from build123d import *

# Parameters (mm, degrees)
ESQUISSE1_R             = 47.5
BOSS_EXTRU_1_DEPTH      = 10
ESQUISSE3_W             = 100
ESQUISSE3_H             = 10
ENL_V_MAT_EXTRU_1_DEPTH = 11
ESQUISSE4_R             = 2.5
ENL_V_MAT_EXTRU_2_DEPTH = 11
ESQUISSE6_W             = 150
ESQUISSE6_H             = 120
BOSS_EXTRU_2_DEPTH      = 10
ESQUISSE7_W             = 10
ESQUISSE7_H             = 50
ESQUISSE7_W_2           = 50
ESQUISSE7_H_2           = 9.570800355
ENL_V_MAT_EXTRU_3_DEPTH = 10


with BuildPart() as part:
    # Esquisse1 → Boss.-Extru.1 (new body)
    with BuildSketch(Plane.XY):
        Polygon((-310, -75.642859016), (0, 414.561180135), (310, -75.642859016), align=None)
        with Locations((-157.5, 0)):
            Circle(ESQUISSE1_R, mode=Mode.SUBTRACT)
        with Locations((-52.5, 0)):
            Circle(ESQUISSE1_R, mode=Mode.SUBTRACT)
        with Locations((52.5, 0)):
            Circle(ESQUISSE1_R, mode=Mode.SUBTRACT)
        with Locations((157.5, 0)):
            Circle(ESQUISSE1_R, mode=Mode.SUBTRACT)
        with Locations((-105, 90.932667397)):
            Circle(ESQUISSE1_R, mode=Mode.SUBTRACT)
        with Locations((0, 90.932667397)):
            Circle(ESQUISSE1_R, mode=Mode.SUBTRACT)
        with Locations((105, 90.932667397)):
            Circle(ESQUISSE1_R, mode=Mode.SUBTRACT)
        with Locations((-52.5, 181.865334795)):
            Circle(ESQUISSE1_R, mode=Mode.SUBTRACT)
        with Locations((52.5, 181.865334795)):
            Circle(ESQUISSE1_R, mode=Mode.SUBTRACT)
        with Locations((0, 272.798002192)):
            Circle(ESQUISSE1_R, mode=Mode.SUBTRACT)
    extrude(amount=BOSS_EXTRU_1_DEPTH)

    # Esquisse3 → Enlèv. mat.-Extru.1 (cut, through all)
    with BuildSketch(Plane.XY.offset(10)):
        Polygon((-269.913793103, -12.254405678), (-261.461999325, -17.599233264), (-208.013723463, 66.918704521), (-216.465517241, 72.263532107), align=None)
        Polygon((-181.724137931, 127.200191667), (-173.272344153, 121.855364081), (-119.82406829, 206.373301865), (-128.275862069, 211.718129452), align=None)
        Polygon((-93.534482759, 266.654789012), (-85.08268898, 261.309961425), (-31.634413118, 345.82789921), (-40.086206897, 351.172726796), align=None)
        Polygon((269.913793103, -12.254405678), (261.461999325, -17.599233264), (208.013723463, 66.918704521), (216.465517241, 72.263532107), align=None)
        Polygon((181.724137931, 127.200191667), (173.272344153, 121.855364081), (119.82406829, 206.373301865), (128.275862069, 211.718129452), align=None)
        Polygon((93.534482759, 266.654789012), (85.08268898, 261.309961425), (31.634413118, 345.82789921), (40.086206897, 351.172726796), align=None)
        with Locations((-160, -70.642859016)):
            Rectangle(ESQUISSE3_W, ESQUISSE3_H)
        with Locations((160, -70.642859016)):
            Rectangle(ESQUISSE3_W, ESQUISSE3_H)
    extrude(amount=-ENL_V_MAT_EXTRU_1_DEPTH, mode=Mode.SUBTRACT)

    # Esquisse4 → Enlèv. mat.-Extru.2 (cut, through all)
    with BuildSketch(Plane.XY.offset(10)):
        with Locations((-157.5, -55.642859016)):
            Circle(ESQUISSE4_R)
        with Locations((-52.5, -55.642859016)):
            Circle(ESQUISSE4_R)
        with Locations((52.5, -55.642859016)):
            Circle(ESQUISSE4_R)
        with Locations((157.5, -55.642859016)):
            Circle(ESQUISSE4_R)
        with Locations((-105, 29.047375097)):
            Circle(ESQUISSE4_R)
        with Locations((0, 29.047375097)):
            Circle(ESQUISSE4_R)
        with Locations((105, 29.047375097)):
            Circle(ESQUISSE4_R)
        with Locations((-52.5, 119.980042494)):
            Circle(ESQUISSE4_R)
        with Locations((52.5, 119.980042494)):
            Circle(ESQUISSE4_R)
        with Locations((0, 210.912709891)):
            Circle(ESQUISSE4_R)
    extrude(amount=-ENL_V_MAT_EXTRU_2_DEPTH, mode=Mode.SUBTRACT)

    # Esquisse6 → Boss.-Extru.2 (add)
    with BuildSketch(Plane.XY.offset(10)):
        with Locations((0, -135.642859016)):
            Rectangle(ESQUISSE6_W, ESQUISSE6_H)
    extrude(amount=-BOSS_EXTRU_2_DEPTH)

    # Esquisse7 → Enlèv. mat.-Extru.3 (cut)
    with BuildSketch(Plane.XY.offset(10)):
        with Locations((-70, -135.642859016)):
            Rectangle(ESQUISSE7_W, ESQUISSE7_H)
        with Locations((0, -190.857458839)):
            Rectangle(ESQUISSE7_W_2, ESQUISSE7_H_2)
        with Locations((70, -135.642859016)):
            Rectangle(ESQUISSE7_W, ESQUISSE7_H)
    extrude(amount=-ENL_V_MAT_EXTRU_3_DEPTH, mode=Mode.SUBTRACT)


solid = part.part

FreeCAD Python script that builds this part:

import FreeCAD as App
import Part
import Sketcher
from FreeCAD import Vector
Q = App.Units.Quantity

doc = App.newDocument("Part")
body = doc.addObject("PartDesign::Body", "Body")

# Sketch on XY plane
sketch1 = body.newObject("Sketcher::SketchObject", "Sketch")
sketch1.AttachmentSupport = (doc.getObject("XY_Plane"), [""])
sketch1.MapMode = "FlatFace"
sketch1.addGeometry([
    Part.LineSegment(Vector(0, 415, 0), Vector(-310, -76, 0)),  # 0
    Part.LineSegment(Vector(-310, -76, 0), Vector(310, -76, 0)),  # 1
    Part.LineSegment(Vector(310, -76, 0), Vector(0, 415, 0)),  # 2
    Part.Circle(Vector(158, 0, 0), Vector(0, 0, 1), 48),  # 3
    Part.Circle(Vector(52, 0, 0), Vector(0, 0, 1), 48),  # 4
    Part.Circle(Vector(105, 91, 0), Vector(0, 0, 1), 48),  # 5
    Part.Circle(Vector(-52, 0, 0), Vector(0, 0, 1), 48),  # 6
    Part.Circle(Vector(-158, 0, 0), Vector(0, 0, 1), 48),  # 7
    Part.Circle(Vector(0, 91, 0), Vector(0, 0, 1), 48),  # 8
    Part.Circle(Vector(-105, 91, 0), Vector(0, 0, 1), 48),  # 9
    Part.Circle(Vector(52, 182, 0), Vector(0, 0, 1), 48),  # 10
    Part.Circle(Vector(-52, 182, 0), Vector(0, 0, 1), 48),  # 11
    Part.Circle(Vector(0, 273, 0), Vector(0, 0, 1), 48),  # 12
], False)
sketch1.addConstraint([
    Sketcher.Constraint("Coincident", 0, 2, 1, 1),
    Sketcher.Constraint("Coincident", 1, 2, 2, 1),
    Sketcher.Constraint("Coincident", 2, 2, 0, 1),
    Sketcher.Constraint("Horizontal", 1),
    Sketcher.Constraint("Equal", 3, 4),
    Sketcher.Constraint("Equal", 4, 5),
    Sketcher.Constraint("Equal", 5, 6),
    Sketcher.Constraint("Equal", 6, 7),
    Sketcher.Constraint("Equal", 7, 8),
    Sketcher.Constraint("Equal", 8, 9),
    Sketcher.Constraint("Equal", 9, 10),
    Sketcher.Constraint("Equal", 10, 11),
    Sketcher.Constraint("Equal", 11, 12),
    Sketcher.Constraint("Symmetric", 4, 3, 6, 3, -1, 1),
    Sketcher.Constraint("Symmetric", 3, 3, 7, 3, -1, 1),
    Sketcher.Constraint("Symmetric", 5, 3, 9, 3, -2),
    Sketcher.Constraint("Symmetric", 10, 3, 11, 3, -2),
    Sketcher.Constraint("PointOnObject", 3, 3, -1),
    Sketcher.Constraint("PointOnObject", 4, 3, -1),
    Sketcher.Constraint("PointOnObject", 8, 3, -2),
    Sketcher.Constraint("PointOnObject", 12, 3, -2),
    Sketcher.Constraint("PointOnObject", 2, 2, -2),
    Sketcher.Constraint("Horizontal", 5, 3, 8, 3),
    Sketcher.Constraint("Vertical", 4, 3, 10, 3),
    Sketcher.Constraint("Equal", 0, 2),
    Sketcher.Constraint("Diameter", 3, Q("95 mm")),
    Sketcher.Constraint("DistanceX", 1, 1, 1, 2, Q("620 mm")),
    Sketcher.Constraint("Distance", 0, Q("580 mm")),
    Sketcher.Constraint("DistanceX", -1, 1, 5, 3, Q("105 mm")),
    Sketcher.Constraint("DistanceX", 4, 3, 3, 3, Q("105 mm")),
    Sketcher.Constraint("DistanceX", 6, 3, 4, 3, Q("105 mm")),
    Sketcher.Constraint("DistanceY", 0, 2, -1, 1, Q("75.642859 mm")),
    Sketcher.Constraint("DistanceY", -1, 1, 5, 3, Q("90.932667 mm")),
    Sketcher.Constraint("DistanceY", -1, 1, 10, 3, Q("181.865335 mm")),
    Sketcher.Constraint("DistanceY", -1, 1, 12, 3, Q("272.798002 mm")),
])
pad1 = body.newObject("PartDesign::Pad", "Pad")
pad1.Profile = sketch1
pad1.Length = 10

# Sketch on XY plane
sketch2 = body.newObject("Sketcher::SketchObject", "Sketch001")
sketch2.AttachmentSupport = (doc.getObject("XY_Plane"), [""])
sketch2.MapMode = "FlatFace"
sketch2.AttachmentOffset = App.Placement(Vector(0, 0, 10), App.Rotation())
sketch2.addGeometry([
    Part.LineSegment(Vector(-270, -12, 0), Vector(-261, -18, 0)),  # 0
    Part.LineSegment(Vector(-261, -18, 0), Vector(-208, 67, 0)),  # 1
    Part.LineSegment(Vector(-208, 67, 0), Vector(-216, 72, 0)),  # 2
    Part.LineSegment(Vector(-216, 72, 0), Vector(-270, -12, 0)),  # 3
    Part.LineSegment(Vector(-182, 127, 0), Vector(-173, 122, 0)),  # 4
    Part.LineSegment(Vector(-173, 122, 0), Vector(-120, 206, 0)),  # 5
    Part.LineSegment(Vector(-120, 206, 0), Vector(-128, 212, 0)),  # 6
    Part.LineSegment(Vector(-128, 212, 0), Vector(-182, 127, 0)),  # 7
    Part.LineSegment(Vector(-94, 267, 0), Vector(-85, 261, 0)),  # 8
    Part.LineSegment(Vector(-85, 261, 0), Vector(-32, 346, 0)),  # 9
    Part.LineSegment(Vector(-32, 346, 0), Vector(-40, 351, 0)),  # 10
    Part.LineSegment(Vector(-40, 351, 0), Vector(-94, 267, 0)),  # 11
    Part.LineSegment(Vector(261, -18, 0), Vector(270, -12, 0)),  # 12
    Part.LineSegment(Vector(270, -12, 0), Vector(216, 72, 0)),  # 13
    Part.LineSegment(Vector(216, 72, 0), Vector(208, 67, 0)),  # 14
    Part.LineSegment(Vector(208, 67, 0), Vector(261, -18, 0)),  # 15
    Part.LineSegment(Vector(173, 122, 0), Vector(182, 127, 0)),  # 16
    Part.LineSegment(Vector(182, 127, 0), Vector(128, 212, 0)),  # 17
    Part.LineSegment(Vector(128, 212, 0), Vector(120, 206, 0)),  # 18
    Part.LineSegment(Vector(120, 206, 0), Vector(173, 122, 0)),  # 19
    Part.LineSegment(Vector(85, 261, 0), Vector(94, 267, 0)),  # 20
    Part.LineSegment(Vector(94, 267, 0), Vector(40, 351, 0)),  # 21
    Part.LineSegment(Vector(40, 351, 0), Vector(32, 346, 0)),  # 22
    Part.LineSegment(Vector(32, 346, 0), Vector(85, 261, 0)),  # 23
    Part.LineSegment(Vector(-210, -66, 0), Vector(-210, -76, 0)),  # 24
    Part.LineSegment(Vector(-210, -76, 0), Vector(-110, -76, 0)),  # 25
    Part.LineSegment(Vector(-110, -76, 0), Vector(-110, -66, 0)),  # 26
    Part.LineSegment(Vector(-110, -66, 0), Vector(-210, -66, 0)),  # 27
    Part.LineSegment(Vector(110, -66, 0), Vector(110, -76, 0)),  # 28
    Part.LineSegment(Vector(110, -76, 0), Vector(210, -76, 0)),  # 29
    Part.LineSegment(Vector(210, -76, 0), Vector(210, -66, 0)),  # 30
    Part.LineSegment(Vector(210, -66, 0), Vector(110, -66, 0)),  # 31
], False)
sketch2.addConstraint([
    Sketcher.Constraint("Coincident", 0, 2, 1, 1),
    Sketcher.Constraint("Coincident", 1, 2, 2, 1),
    Sketcher.Constraint("Coincident", 2, 2, 3, 1),
    Sketcher.Constraint("Coincident", 3, 2, 0, 1),
    Sketcher.Constraint("Coincident", 4, 2, 5, 1),
    Sketcher.Constraint("Coincident", 5, 2, 6, 1),
    Sketcher.Constraint("Coincident", 6, 2, 7, 1),
    Sketcher.Constraint("Coincident", 7, 2, 4, 1),
    Sketcher.Constraint("Coincident", 8, 2, 9, 1),
    Sketcher.Constraint("Coincident", 9, 2, 10, 1),
    Sketcher.Constraint("Coincident", 10, 2, 11, 1),
    Sketcher.Constraint("Coincident", 11, 2, 8, 1),
    Sketcher.Constraint("Coincident", 12, 2, 13, 1),
    Sketcher.Constraint("Coincident", 13, 2, 14, 1),
    Sketcher.Constraint("Coincident", 14, 2, 15, 1),
    Sketcher.Constraint("Coincident", 15, 2, 12, 1),
    Sketcher.Constraint("Coincident", 16, 2, 17, 1),
    Sketcher.Constraint("Coincident", 17, 2, 18, 1),
    Sketcher.Constraint("Coincident", 18, 2, 19, 1),
    Sketcher.Constraint("Coincident", 19, 2, 16, 1),
    Sketcher.Constraint("Coincident", 20, 2, 21, 1),
    Sketcher.Constraint("Coincident", 21, 2, 22, 1),
    Sketcher.Constraint("Coincident", 22, 2, 23, 1),
    Sketcher.Constraint("Coincident", 23, 2, 20, 1),
    Sketcher.Constraint("Coincident", 24, 2, 25, 1),
    Sketcher.Constraint("Coincident", 25, 2, 26, 1),
    Sketcher.Constraint("Coincident", 26, 2, 27, 1),
    Sketcher.Constraint("Coincident", 27, 2, 24, 1),
    Sketcher.Constraint("Coincident", 28, 2, 29, 1),
    Sketcher.Constraint("Coincident", 29, 2, 30, 1),
    Sketcher.Constraint("Coincident", 30, 2, 31, 1),
    Sketcher.Constraint("Coincident", 31, 2, 28, 1),
    Sketcher.Constraint("Vertical", 24),
    Sketcher.Constraint("Horizontal", 25),
    Sketcher.Constraint("Vertical", 26),
    Sketcher.Constraint("Horizontal", 27),
    Sketcher.Constraint("Vertical", 28),
    Sketcher.Constraint("Horizontal", 29),
    Sketcher.Constraint("Vertical", 30),
    Sketcher.Constraint("Horizontal", 31),
    Sketcher.Constraint("Symmetric", 3, 2, 12, 2, -2),
    Sketcher.Constraint("Symmetric", 2, 2, 13, 2, -2),
    Sketcher.Constraint("Symmetric", 1, 2, 14, 2, -2),
    Sketcher.Constraint("Symmetric", 0, 2, 15, 2, -2),
    Sketcher.Constraint("Symmetric", 7, 2, 16, 2, -2),
    Sketcher.Constraint("Symmetric", 6, 2, 17, 2, -2),
    Sketcher.Constraint("Symmetric", 5, 2, 18, 2, -2),
    Sketcher.Constraint("Symmetric", 4, 2, 19, 2, -2),
    Sketcher.Constraint("Symmetric", 11, 2, 20, 2, -2),
    Sketcher.Constraint("Symmetric", 10, 2, 21, 2, -2),
    Sketcher.Constraint("Symmetric", 9, 2, 22, 2, -2),
    Sketcher.Constraint("Symmetric", 8, 2, 23, 2, -2),
    Sketcher.Constraint("Symmetric", 25, 2, 28, 2, -2),
    Sketcher.Constraint("Symmetric", 27, 2, 30, 2, -2),
    Sketcher.Constraint("Perpendicular", 0, 1),
    Sketcher.Constraint("Perpendicular", 1, 2),
    Sketcher.Constraint("Perpendicular", 2, 3),
    Sketcher.Constraint("Perpendicular", 3, 4),
    Sketcher.Constraint("Perpendicular", 4, 5),
    Sketcher.Constraint("Perpendicular", 5, 6),
    Sketcher.Constraint("Perpendicular", 6, 7),
    Sketcher.Constraint("Perpendicular", 7, 8),
    Sketcher.Constraint("Perpendicular", 8, 9),
    Sketcher.Constraint("Perpendicular", 9, 10),
    Sketcher.Constraint("Perpendicular", 10, 11),
    Sketcher.Constraint("Equal", 2, 4),
    Sketcher.Constraint("Equal", 3, 5),
    Sketcher.Constraint("Equal", 6, 8),
    Sketcher.Constraint("Equal", 7, 9),
    Sketcher.Constraint("DistanceX", 25, 1, 25, 2, Q("100 mm")),
    Sketcher.Constraint("DistanceY", 24, 2, 24, 1, Q("10 mm")),
    Sketcher.Constraint("Distance", 0, Q("10 mm")),
    Sketcher.Constraint("Distance", 1, Q("100 mm")),
    Sketcher.Constraint("DistanceX", 24, 2, -1, 1, Q("210 mm")),
    Sketcher.Constraint("DistanceX", 11, 2, 13, 2, Q("310 mm")),
    Sketcher.Constraint("DistanceX", 0, 2, -1, 1, Q("261.461999 mm")),
    Sketcher.Constraint("DistanceY", -1, 1, 5, 2, Q("206.373302 mm")),
    Sketcher.Constraint("DistanceY", -1, 1, 9, 2, Q("345.827899 mm")),
    Sketcher.Constraint("DistanceX", 5, 2, -1, 1, Q("119.824068 mm")),
    Sketcher.Constraint("DistanceY", -1, 1, 6, 2, Q("211.718129 mm")),
    Sketcher.Constraint("DistanceY", 24, 2, -1, 1, Q("75.642859 mm")),
    Sketcher.Constraint("DistanceY", 1, 2, 4, 2, Q("54.93666 mm")),
])
pocket1 = body.newObject("PartDesign::Pocket", "Pocket")
pocket1.Profile = sketch2
pocket1.Type = "ThroughAll"

# Sketch on XY plane
sketch3 = body.newObject("Sketcher::SketchObject", "Sketch002")
sketch3.AttachmentSupport = (doc.getObject("XY_Plane"), [""])
sketch3.MapMode = "FlatFace"
sketch3.AttachmentOffset = App.Placement(Vector(0, 0, 10), App.Rotation())
sketch3.addGeometry([
    Part.Circle(Vector(-157.5, -55.6, 0), Vector(0, 0, 1), 2.5),  # 0
    Part.Circle(Vector(-52.5, -55.6, 0), Vector(0, 0, 1), 2.5),  # 1
    Part.Circle(Vector(52.5, -55.6, 0), Vector(0, 0, 1), 2.5),  # 2
    Part.Circle(Vector(157.5, -55.6, 0), Vector(0, 0, 1), 2.5),  # 3
    Part.Circle(Vector(-105, 29, 0), Vector(0, 0, 1), 2.5),  # 4
    Part.Circle(Vector(0, 29, 0), Vector(0, 0, 1), 2.5),  # 5
    Part.Circle(Vector(105, 29, 0), Vector(0, 0, 1), 2.5),  # 6
    Part.Circle(Vector(-52.5, 120, 0), Vector(0, 0, 1), 2.5),  # 7
    Part.Circle(Vector(52.5, 120, 0), Vector(0, 0, 1), 2.5),  # 8
    Part.Circle(Vector(0, 210.9, 0), Vector(0, 0, 1), 2.5),  # 9
], False)
sketch3.addConstraint([
    Sketcher.Constraint("Equal", 0, 1),
    Sketcher.Constraint("Equal", 1, 2),
    Sketcher.Constraint("Equal", 2, 3),
    Sketcher.Constraint("Equal", 3, 4),
    Sketcher.Constraint("Equal", 4, 5),
    Sketcher.Constraint("Equal", 5, 6),
    Sketcher.Constraint("Equal", 6, 7),
    Sketcher.Constraint("Equal", 7, 8),
    Sketcher.Constraint("Equal", 8, 9),
    Sketcher.Constraint("Symmetric", 1, 3, 2, 3, -2),
    Sketcher.Constraint("Symmetric", 0, 3, 3, 3, -2),
    Sketcher.Constraint("Symmetric", 4, 3, 6, 3, -2),
    Sketcher.Constraint("Symmetric", 7, 3, 8, 3, -2),
    Sketcher.Constraint("PointOnObject", 5, 3, -2),
    Sketcher.Constraint("PointOnObject", 9, 3, -2),
    Sketcher.Constraint("Horizontal", 0, 3, 1, 3),
    Sketcher.Constraint("Horizontal", 4, 3, 5, 3),
    Sketcher.Constraint("Vertical", 1, 3, 7, 3),
    Sketcher.Constraint("Diameter", 0, Q("5 mm")),
    Sketcher.Constraint("DistanceX", 4, 3, -1, 1, Q("105 mm")),
    Sketcher.Constraint("DistanceX", 0, 3, 1, 3, Q("105 mm")),
    Sketcher.Constraint("DistanceX", 1, 3, 2, 3, Q("105 mm")),
    Sketcher.Constraint("DistanceY", 1, 3, 7, 3, Q("175.622902 mm")),
    Sketcher.Constraint("DistanceY", 0, 3, -1, 1, Q("55.642859 mm")),
    Sketcher.Constraint("DistanceY", -1, 1, 9, 3, Q("210.91271 mm")),
    Sketcher.Constraint("DistanceY", -1, 1, 4, 3, Q("29.047375 mm")),
])
pocket2 = body.newObject("PartDesign::Pocket", "Pocket001")
pocket2.Profile = sketch3
pocket2.Type = "ThroughAll"

# Sketch on XY plane
sketch4 = body.newObject("Sketcher::SketchObject", "Sketch003")
sketch4.AttachmentSupport = (doc.getObject("XY_Plane"), [""])
sketch4.MapMode = "FlatFace"
sketch4.AttachmentOffset = App.Placement(Vector(0, 0, 10), App.Rotation())
sketch4.addGeometry([
    Part.LineSegment(Vector(-75, -76, 0), Vector(-75, -196, 0)),
    Part.LineSegment(Vector(-75, -196, 0), Vector(75, -196, 0)),
    Part.LineSegment(Vector(75, -196, 0), Vector(75, -76, 0)),
    Part.LineSegment(Vector(75, -76, 0), Vector(-75, -76, 0)),
], False)
sketch4.addConstraint([
    Sketcher.Constraint("Coincident", 0, 2, 1, 1),
    Sketcher.Constraint("Coincident", 1, 2, 2, 1),
    Sketcher.Constraint("Coincident", 2, 2, 3, 1),
    Sketcher.Constraint("Coincident", 3, 2, 0, 1),
    Sketcher.Constraint("Vertical", 0),
    Sketcher.Constraint("Horizontal", 1),
    Sketcher.Constraint("Vertical", 2),
    Sketcher.Constraint("Horizontal", 3),
    Sketcher.Constraint("DistanceX", 1, 1, 1, 2, Q("150 mm")),
    Sketcher.Constraint("DistanceY", 0, 2, 0, 1, Q("120 mm")),
    Sketcher.Constraint("DistanceX", 0, 2, -1, 1, Q("75 mm")),
    Sketcher.Constraint("DistanceY", 0, 2, -1, 1, Q("195.642859 mm")),
])
pad2 = body.newObject("PartDesign::Pad", "Pad001")
pad2.Profile = sketch4
pad2.Length = 10
pad2.Reversed = True

# Sketch on XY plane
sketch5 = body.newObject("Sketcher::SketchObject", "Sketch004")
sketch5.AttachmentSupport = (doc.getObject("XY_Plane"), [""])
sketch5.MapMode = "FlatFace"
sketch5.AttachmentOffset = App.Placement(Vector(0, 0, 10), App.Rotation())
sketch5.addGeometry([
    Part.LineSegment(Vector(-75, -111, 0), Vector(-75, -161, 0)),  # 0
    Part.LineSegment(Vector(-75, -161, 0), Vector(-65, -161, 0)),  # 1
    Part.LineSegment(Vector(-65, -161, 0), Vector(-65, -111, 0)),  # 2
    Part.LineSegment(Vector(-65, -111, 0), Vector(-75, -111, 0)),  # 3
    Part.LineSegment(Vector(-25, -186, 0), Vector(-25, -196, 0)),  # 4
    Part.LineSegment(Vector(-25, -196, 0), Vector(25, -196, 0)),  # 5
    Part.LineSegment(Vector(25, -196, 0), Vector(25, -186, 0)),  # 6
    Part.LineSegment(Vector(25, -186, 0), Vector(-25, -186, 0)),  # 7
    Part.LineSegment(Vector(65, -111, 0), Vector(65, -161, 0)),  # 8
    Part.LineSegment(Vector(65, -161, 0), Vector(75, -161, 0)),  # 9
    Part.LineSegment(Vector(75, -161, 0), Vector(75, -111, 0)),  # 10
    Part.LineSegment(Vector(75, -111, 0), Vector(65, -111, 0)),  # 11
], False)
sketch5.addConstraint([
    Sketcher.Constraint("Coincident", 0, 2, 1, 1),
    Sketcher.Constraint("Coincident", 1, 2, 2, 1),
    Sketcher.Constraint("Coincident", 2, 2, 3, 1),
    Sketcher.Constraint("Coincident", 3, 2, 0, 1),
    Sketcher.Constraint("Coincident", 4, 2, 5, 1),
    Sketcher.Constraint("Coincident", 5, 2, 6, 1),
    Sketcher.Constraint("Coincident", 6, 2, 7, 1),
    Sketcher.Constraint("Coincident", 7, 2, 4, 1),
    Sketcher.Constraint("Coincident", 8, 2, 9, 1),
    Sketcher.Constraint("Coincident", 9, 2, 10, 1),
    Sketcher.Constraint("Coincident", 10, 2, 11, 1),
    Sketcher.Constraint("Coincident", 11, 2, 8, 1),
    Sketcher.Constraint("Vertical", 0),
    Sketcher.Constraint("Horizontal", 1),
    Sketcher.Constraint("Vertical", 2),
    Sketcher.Constraint("Horizontal", 3),
    Sketcher.Constraint("Vertical", 4),
    Sketcher.Constraint("Horizontal", 5),
    Sketcher.Constraint("Vertical", 6),
    Sketcher.Constraint("Horizontal", 7),
    Sketcher.Constraint("Vertical", 8),
    Sketcher.Constraint("Horizontal", 9),
    Sketcher.Constraint("Vertical", 10),
    Sketcher.Constraint("Horizontal", 11),
    Sketcher.Constraint("Symmetric", 1, 2, 8, 2, -2),
    Sketcher.Constraint("Symmetric", 3, 2, 10, 2, -2),
    Sketcher.Constraint("Equal", 7, 0),
    Sketcher.Constraint("DistanceX", 1, 1, 1, 2, Q("10 mm")),
    Sketcher.Constraint("DistanceX", 5, 1, 5, 2, Q("50 mm")),
    Sketcher.Constraint("DistanceX", 0, 2, -1, 1, Q("75 mm")),
    Sketcher.Constraint("DistanceX", 4, 2, -1, 1, Q("25 mm")),
    Sketcher.Constraint("DistanceY", 4, 2, 1, 2, Q("35 mm")),
    Sketcher.Constraint("DistanceY", 4, 2, 4, 1, Q("9.5708 mm")),
    Sketcher.Constraint("DistanceY", 0, 2, -1, 1, Q("160.642859 mm")),
])
pocket3 = body.newObject("PartDesign::Pocket", "Pocket002")
pocket3.Profile = sketch5
pocket3.Length = 10

doc.recompute()
